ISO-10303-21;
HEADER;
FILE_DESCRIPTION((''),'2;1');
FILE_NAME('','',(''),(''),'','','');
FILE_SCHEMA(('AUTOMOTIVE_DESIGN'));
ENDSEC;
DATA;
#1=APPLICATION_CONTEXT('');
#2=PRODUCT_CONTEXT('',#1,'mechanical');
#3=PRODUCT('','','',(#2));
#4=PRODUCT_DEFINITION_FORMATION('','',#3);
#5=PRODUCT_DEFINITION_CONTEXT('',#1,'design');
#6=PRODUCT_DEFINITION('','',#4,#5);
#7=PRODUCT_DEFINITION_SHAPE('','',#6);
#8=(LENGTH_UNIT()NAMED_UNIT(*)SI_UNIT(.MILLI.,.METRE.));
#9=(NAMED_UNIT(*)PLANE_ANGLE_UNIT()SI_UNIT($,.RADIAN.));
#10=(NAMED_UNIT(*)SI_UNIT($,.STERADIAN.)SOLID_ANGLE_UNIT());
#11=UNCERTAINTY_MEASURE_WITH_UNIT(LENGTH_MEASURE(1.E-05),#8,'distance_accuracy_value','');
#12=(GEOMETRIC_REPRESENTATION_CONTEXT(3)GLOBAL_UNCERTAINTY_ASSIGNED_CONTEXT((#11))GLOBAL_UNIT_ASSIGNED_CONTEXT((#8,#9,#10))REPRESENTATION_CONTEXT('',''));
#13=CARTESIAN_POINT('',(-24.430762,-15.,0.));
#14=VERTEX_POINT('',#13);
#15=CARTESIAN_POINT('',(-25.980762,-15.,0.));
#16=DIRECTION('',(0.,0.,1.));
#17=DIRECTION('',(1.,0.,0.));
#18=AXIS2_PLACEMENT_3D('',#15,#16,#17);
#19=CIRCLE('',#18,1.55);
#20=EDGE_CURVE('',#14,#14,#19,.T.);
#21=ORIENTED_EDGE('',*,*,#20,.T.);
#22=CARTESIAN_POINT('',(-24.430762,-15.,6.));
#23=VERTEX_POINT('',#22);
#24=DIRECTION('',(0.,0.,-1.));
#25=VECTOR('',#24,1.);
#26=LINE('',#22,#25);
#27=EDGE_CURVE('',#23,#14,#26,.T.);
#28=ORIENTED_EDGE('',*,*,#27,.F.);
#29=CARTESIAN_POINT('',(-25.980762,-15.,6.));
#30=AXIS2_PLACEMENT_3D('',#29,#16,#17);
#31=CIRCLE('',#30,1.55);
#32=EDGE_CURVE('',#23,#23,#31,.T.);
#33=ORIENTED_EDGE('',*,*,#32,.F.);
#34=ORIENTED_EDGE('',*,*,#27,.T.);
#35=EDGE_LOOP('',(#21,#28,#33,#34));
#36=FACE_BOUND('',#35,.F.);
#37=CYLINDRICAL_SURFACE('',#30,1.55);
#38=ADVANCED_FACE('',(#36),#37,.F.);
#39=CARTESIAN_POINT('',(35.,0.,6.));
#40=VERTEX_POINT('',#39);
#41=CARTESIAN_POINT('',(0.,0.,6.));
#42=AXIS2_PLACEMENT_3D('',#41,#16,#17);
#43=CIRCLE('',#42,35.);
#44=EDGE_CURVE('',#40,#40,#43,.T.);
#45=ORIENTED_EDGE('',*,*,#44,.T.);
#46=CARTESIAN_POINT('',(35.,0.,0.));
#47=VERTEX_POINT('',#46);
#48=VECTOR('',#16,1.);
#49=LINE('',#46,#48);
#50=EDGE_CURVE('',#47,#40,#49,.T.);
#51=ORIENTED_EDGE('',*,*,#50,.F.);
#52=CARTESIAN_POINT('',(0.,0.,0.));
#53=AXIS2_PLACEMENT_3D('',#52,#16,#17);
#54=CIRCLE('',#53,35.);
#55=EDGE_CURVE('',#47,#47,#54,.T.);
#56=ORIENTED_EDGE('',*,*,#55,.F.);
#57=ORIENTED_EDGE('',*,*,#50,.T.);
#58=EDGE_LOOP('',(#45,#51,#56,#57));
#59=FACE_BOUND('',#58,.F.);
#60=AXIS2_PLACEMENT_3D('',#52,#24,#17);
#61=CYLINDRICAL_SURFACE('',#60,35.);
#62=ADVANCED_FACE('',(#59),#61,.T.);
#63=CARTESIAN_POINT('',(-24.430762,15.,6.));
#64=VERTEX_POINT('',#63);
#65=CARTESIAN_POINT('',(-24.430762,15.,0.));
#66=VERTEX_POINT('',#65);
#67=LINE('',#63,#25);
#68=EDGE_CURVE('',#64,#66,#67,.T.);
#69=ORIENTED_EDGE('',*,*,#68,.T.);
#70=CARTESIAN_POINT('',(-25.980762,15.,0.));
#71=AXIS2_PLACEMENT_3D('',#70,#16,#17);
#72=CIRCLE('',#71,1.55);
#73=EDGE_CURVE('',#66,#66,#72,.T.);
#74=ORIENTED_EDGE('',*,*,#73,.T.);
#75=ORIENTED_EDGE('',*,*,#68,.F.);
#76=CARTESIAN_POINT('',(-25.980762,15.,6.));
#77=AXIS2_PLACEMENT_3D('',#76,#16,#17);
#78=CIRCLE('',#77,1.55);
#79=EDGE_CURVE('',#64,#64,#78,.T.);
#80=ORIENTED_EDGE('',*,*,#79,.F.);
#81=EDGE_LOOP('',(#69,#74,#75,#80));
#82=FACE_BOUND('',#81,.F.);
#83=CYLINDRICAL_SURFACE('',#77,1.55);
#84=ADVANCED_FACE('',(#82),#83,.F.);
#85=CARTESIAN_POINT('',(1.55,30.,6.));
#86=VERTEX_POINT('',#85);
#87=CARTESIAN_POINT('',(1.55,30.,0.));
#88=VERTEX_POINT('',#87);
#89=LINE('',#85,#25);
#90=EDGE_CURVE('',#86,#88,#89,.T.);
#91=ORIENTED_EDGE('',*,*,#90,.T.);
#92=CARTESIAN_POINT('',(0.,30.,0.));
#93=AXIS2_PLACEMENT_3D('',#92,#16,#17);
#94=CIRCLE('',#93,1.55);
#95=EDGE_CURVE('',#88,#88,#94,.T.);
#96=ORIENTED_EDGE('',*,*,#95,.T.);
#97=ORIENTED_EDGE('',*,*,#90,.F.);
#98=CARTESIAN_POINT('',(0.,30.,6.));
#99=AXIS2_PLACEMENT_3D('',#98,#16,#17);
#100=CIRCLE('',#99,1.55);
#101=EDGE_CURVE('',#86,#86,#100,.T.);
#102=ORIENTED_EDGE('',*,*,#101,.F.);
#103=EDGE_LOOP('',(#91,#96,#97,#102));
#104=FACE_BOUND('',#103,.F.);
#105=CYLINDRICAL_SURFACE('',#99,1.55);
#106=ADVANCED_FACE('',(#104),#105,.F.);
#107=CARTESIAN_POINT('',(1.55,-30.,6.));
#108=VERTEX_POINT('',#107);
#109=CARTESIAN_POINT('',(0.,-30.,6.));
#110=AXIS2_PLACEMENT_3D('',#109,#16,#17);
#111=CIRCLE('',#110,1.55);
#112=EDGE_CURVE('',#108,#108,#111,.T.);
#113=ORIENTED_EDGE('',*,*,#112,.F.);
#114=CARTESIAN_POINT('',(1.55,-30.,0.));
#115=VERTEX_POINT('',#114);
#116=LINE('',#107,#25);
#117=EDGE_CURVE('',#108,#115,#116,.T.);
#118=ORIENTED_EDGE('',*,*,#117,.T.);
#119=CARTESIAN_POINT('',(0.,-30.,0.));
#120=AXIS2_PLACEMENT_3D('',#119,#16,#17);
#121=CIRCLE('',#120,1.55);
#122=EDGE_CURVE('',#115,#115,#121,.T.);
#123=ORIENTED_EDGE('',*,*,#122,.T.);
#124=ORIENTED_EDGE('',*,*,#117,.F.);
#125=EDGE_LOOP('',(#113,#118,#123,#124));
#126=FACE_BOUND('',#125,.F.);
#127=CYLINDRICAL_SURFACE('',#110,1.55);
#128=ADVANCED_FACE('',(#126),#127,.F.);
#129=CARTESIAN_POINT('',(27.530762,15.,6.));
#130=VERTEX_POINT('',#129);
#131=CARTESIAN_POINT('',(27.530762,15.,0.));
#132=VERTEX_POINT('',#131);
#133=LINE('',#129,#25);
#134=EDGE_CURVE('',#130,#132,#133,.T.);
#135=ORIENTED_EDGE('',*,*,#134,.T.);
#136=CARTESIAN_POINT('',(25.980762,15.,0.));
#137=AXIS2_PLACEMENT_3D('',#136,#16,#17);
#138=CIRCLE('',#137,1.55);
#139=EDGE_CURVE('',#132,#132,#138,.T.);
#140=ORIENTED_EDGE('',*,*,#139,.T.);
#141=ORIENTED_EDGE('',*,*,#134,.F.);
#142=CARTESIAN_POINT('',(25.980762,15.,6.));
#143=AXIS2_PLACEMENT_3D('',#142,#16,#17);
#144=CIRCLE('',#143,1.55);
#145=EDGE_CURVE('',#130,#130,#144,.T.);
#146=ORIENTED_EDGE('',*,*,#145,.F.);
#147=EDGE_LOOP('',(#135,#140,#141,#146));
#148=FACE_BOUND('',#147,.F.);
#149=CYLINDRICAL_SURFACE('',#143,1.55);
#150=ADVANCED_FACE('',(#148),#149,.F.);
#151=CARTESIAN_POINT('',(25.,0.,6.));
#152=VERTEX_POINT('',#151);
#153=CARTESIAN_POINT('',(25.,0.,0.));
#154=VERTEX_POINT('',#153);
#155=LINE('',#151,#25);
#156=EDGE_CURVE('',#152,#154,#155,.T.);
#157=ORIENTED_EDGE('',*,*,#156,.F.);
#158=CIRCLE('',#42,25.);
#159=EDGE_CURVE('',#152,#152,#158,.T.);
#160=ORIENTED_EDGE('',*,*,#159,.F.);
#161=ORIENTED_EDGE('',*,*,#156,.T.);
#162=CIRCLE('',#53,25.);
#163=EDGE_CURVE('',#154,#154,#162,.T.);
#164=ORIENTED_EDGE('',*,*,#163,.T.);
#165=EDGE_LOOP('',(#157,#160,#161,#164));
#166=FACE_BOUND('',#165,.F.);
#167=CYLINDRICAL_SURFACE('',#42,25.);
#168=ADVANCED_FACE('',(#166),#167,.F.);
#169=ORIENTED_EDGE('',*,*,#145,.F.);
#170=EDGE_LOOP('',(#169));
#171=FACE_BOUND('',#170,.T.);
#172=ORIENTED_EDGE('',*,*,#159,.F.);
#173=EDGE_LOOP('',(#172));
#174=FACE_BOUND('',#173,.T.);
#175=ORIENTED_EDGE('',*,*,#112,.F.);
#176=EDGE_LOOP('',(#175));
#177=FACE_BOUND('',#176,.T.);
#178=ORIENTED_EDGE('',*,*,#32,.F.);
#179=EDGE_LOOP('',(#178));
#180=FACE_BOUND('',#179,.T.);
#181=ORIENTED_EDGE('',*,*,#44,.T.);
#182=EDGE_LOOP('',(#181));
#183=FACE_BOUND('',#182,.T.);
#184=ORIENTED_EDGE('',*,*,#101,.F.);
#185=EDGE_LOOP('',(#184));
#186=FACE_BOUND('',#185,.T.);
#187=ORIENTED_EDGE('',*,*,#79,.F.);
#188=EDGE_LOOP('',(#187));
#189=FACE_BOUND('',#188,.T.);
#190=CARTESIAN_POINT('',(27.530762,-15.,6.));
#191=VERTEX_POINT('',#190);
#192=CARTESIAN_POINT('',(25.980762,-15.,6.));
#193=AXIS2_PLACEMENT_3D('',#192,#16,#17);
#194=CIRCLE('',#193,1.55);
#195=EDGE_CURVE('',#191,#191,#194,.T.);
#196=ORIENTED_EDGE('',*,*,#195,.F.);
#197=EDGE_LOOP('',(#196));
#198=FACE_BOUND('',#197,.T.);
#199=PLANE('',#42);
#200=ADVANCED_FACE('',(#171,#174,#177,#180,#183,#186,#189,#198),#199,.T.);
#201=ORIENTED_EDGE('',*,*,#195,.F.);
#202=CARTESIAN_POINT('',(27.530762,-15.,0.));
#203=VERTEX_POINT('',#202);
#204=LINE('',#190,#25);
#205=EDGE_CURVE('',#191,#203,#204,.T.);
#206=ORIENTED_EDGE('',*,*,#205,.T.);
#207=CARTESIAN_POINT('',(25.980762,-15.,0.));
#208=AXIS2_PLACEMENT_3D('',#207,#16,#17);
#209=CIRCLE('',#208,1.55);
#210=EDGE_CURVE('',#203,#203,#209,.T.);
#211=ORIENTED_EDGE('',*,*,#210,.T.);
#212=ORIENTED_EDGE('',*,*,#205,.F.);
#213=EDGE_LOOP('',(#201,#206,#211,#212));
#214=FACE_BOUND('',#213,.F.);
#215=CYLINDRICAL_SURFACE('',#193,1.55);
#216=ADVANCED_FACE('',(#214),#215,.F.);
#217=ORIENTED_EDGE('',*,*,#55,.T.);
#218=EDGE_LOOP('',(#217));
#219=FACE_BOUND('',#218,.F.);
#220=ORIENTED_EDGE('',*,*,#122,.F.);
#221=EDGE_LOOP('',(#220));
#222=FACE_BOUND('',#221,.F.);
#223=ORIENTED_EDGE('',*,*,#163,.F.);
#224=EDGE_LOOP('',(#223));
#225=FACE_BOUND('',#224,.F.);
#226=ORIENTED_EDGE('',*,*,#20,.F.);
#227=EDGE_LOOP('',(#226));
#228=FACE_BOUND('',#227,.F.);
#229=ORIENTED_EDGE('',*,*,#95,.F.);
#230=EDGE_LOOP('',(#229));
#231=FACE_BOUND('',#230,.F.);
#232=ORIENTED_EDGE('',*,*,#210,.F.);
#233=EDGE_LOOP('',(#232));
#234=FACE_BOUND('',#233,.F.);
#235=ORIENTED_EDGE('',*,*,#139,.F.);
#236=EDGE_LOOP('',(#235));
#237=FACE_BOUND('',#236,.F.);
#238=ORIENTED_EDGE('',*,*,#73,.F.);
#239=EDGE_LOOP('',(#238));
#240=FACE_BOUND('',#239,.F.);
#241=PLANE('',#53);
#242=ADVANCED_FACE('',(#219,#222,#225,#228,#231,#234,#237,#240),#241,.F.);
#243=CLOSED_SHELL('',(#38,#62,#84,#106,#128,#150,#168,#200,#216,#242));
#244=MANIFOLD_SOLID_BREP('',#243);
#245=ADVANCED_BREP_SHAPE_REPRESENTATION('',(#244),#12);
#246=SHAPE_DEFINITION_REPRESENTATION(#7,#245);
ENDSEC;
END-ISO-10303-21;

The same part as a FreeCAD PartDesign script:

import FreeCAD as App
import Part
import Sketcher
from FreeCAD import Vector

doc = App.newDocument("Part")
body = doc.addObject("PartDesign::Body", "Body")

sketch1 = body.newObject("Sketcher::SketchObject", "Sketch")
sketch1.AttachmentSupport = (doc.getObject("XY_Plane"), [""])
sketch1.MapMode = "FlatFace"
sketch1.addGeometry(Part.Circle(Vector(0, 0, 0), Vector(0, 0, 1), 35), False)
sketch1.addConstraint(Sketcher.Constraint("Coincident", 0, 3, -1, 1))
sketch1.addConstraint(Sketcher.Constraint("Diameter", 0, 70.0))
pad1 = body.newObject("PartDesign::Pad", "Pad")
pad1.Profile = sketch1
pad1.Length = 6

sketch2 = body.newObject("Sketcher::SketchObject", "Sketch001")
sketch2.AttachmentSupport = (doc.getObject("XY_Plane"), [""])
sketch2.MapMode = "FlatFace"
sketch2.AttachmentOffset = App.Placement(Vector(0, 0, 6), App.Rotation())
sketch2.addGeometry(Part.Circle(Vector(0, 30, 0), Vector(0, 0, 1), 1.6), False)
sketch2.addGeometry(Part.Circle(Vector(-26, 15, 0), Vector(0, 0, 1), 1.6), False)
sketch2.addGeometry(Part.Circle(Vector(-26, -15, 0), Vector(0, 0, 1), 1.6), False)
sketch2.addGeometry(Part.Circle(Vector(26, 15, 0), Vector(0, 0, 1), 1.6), False)
sketch2.addGeometry(Part.Circle(Vector(26, -15, 0), Vector(0, 0, 1), 1.6), False)
sketch2.addGeometry(Part.Circle(Vector(0, -30, 0), Vector(0, 0, 1), 1.6), False)
sketch2.addConstraint(Sketcher.Constraint("Equal", 0, 1))
sketch2.addConstraint(Sketcher.Constraint("Equal", 1, 2))
sketch2.addConstraint(Sketcher.Constraint("Equal", 2, 3))
sketch2.addConstraint(Sketcher.Constraint("Equal", 3, 4))
sketch2.addConstraint(Sketcher.Constraint("Equal", 4, 5))
sketch2.addConstraint(Sketcher.Constraint("Symmetric", 2, 3, 3, 3, -1, 1))
sketch2.addConstraint(Sketcher.Constraint("Symmetric", 1, 3, 4, 3, -1, 1))
sketch2.addConstraint(Sketcher.Constraint("Symmetric", 0, 3, 5, 3, -1, 1))
sketch2.addConstraint(Sketcher.Constraint("Symmetric", 1, 3, 3, 3, -2))
sketch2.addConstraint(Sketcher.Constraint("PointOnObject", 0, 3, -2))
sketch2.addConstraint(Sketcher.Constraint("Diameter", 0, 3.1))
sketch2.addConstraint(Sketcher.Constraint("DistanceY", -1, 1, 0, 3, 30.0))
sketch2.addConstraint(Sketcher.Constraint("DistanceY", -1, 1, 1, 3, 15.0))
sketch2.addConstraint(Sketcher.Constraint("DistanceX", 1, 3, -1, 1, 25.980762))
pocket1 = body.newObject("PartDesign::Pocket", "Pocket")
pocket1.Profile = sketch2
pocket1.Type = "ThroughAll"

sketch3 = body.newObject("Sketcher::SketchObject", "Sketch002")
sketch3.AttachmentSupport = (doc.getObject("XY_Plane"), [""])
sketch3.MapMode = "FlatFace"
sketch3.AttachmentOffset = App.Placement(Vector(0, 0, 6), App.Rotation())
sketch3.addGeometry(Part.Circle(Vector(0, 0, 0), Vector(0, 0, 1), 25), False)
sketch3.addConstraint(Sketcher.Constraint("Coincident", 0, 3, -1, 1))
sketch3.addConstraint(Sketcher.Constraint("Diameter", 0, 50.0))
pocket2 = body.newObject("PartDesign::Pocket", "Pocket001")
pocket2.Profile = sketch3
pocket2.Type = "ThroughAll"

doc.recompute()
